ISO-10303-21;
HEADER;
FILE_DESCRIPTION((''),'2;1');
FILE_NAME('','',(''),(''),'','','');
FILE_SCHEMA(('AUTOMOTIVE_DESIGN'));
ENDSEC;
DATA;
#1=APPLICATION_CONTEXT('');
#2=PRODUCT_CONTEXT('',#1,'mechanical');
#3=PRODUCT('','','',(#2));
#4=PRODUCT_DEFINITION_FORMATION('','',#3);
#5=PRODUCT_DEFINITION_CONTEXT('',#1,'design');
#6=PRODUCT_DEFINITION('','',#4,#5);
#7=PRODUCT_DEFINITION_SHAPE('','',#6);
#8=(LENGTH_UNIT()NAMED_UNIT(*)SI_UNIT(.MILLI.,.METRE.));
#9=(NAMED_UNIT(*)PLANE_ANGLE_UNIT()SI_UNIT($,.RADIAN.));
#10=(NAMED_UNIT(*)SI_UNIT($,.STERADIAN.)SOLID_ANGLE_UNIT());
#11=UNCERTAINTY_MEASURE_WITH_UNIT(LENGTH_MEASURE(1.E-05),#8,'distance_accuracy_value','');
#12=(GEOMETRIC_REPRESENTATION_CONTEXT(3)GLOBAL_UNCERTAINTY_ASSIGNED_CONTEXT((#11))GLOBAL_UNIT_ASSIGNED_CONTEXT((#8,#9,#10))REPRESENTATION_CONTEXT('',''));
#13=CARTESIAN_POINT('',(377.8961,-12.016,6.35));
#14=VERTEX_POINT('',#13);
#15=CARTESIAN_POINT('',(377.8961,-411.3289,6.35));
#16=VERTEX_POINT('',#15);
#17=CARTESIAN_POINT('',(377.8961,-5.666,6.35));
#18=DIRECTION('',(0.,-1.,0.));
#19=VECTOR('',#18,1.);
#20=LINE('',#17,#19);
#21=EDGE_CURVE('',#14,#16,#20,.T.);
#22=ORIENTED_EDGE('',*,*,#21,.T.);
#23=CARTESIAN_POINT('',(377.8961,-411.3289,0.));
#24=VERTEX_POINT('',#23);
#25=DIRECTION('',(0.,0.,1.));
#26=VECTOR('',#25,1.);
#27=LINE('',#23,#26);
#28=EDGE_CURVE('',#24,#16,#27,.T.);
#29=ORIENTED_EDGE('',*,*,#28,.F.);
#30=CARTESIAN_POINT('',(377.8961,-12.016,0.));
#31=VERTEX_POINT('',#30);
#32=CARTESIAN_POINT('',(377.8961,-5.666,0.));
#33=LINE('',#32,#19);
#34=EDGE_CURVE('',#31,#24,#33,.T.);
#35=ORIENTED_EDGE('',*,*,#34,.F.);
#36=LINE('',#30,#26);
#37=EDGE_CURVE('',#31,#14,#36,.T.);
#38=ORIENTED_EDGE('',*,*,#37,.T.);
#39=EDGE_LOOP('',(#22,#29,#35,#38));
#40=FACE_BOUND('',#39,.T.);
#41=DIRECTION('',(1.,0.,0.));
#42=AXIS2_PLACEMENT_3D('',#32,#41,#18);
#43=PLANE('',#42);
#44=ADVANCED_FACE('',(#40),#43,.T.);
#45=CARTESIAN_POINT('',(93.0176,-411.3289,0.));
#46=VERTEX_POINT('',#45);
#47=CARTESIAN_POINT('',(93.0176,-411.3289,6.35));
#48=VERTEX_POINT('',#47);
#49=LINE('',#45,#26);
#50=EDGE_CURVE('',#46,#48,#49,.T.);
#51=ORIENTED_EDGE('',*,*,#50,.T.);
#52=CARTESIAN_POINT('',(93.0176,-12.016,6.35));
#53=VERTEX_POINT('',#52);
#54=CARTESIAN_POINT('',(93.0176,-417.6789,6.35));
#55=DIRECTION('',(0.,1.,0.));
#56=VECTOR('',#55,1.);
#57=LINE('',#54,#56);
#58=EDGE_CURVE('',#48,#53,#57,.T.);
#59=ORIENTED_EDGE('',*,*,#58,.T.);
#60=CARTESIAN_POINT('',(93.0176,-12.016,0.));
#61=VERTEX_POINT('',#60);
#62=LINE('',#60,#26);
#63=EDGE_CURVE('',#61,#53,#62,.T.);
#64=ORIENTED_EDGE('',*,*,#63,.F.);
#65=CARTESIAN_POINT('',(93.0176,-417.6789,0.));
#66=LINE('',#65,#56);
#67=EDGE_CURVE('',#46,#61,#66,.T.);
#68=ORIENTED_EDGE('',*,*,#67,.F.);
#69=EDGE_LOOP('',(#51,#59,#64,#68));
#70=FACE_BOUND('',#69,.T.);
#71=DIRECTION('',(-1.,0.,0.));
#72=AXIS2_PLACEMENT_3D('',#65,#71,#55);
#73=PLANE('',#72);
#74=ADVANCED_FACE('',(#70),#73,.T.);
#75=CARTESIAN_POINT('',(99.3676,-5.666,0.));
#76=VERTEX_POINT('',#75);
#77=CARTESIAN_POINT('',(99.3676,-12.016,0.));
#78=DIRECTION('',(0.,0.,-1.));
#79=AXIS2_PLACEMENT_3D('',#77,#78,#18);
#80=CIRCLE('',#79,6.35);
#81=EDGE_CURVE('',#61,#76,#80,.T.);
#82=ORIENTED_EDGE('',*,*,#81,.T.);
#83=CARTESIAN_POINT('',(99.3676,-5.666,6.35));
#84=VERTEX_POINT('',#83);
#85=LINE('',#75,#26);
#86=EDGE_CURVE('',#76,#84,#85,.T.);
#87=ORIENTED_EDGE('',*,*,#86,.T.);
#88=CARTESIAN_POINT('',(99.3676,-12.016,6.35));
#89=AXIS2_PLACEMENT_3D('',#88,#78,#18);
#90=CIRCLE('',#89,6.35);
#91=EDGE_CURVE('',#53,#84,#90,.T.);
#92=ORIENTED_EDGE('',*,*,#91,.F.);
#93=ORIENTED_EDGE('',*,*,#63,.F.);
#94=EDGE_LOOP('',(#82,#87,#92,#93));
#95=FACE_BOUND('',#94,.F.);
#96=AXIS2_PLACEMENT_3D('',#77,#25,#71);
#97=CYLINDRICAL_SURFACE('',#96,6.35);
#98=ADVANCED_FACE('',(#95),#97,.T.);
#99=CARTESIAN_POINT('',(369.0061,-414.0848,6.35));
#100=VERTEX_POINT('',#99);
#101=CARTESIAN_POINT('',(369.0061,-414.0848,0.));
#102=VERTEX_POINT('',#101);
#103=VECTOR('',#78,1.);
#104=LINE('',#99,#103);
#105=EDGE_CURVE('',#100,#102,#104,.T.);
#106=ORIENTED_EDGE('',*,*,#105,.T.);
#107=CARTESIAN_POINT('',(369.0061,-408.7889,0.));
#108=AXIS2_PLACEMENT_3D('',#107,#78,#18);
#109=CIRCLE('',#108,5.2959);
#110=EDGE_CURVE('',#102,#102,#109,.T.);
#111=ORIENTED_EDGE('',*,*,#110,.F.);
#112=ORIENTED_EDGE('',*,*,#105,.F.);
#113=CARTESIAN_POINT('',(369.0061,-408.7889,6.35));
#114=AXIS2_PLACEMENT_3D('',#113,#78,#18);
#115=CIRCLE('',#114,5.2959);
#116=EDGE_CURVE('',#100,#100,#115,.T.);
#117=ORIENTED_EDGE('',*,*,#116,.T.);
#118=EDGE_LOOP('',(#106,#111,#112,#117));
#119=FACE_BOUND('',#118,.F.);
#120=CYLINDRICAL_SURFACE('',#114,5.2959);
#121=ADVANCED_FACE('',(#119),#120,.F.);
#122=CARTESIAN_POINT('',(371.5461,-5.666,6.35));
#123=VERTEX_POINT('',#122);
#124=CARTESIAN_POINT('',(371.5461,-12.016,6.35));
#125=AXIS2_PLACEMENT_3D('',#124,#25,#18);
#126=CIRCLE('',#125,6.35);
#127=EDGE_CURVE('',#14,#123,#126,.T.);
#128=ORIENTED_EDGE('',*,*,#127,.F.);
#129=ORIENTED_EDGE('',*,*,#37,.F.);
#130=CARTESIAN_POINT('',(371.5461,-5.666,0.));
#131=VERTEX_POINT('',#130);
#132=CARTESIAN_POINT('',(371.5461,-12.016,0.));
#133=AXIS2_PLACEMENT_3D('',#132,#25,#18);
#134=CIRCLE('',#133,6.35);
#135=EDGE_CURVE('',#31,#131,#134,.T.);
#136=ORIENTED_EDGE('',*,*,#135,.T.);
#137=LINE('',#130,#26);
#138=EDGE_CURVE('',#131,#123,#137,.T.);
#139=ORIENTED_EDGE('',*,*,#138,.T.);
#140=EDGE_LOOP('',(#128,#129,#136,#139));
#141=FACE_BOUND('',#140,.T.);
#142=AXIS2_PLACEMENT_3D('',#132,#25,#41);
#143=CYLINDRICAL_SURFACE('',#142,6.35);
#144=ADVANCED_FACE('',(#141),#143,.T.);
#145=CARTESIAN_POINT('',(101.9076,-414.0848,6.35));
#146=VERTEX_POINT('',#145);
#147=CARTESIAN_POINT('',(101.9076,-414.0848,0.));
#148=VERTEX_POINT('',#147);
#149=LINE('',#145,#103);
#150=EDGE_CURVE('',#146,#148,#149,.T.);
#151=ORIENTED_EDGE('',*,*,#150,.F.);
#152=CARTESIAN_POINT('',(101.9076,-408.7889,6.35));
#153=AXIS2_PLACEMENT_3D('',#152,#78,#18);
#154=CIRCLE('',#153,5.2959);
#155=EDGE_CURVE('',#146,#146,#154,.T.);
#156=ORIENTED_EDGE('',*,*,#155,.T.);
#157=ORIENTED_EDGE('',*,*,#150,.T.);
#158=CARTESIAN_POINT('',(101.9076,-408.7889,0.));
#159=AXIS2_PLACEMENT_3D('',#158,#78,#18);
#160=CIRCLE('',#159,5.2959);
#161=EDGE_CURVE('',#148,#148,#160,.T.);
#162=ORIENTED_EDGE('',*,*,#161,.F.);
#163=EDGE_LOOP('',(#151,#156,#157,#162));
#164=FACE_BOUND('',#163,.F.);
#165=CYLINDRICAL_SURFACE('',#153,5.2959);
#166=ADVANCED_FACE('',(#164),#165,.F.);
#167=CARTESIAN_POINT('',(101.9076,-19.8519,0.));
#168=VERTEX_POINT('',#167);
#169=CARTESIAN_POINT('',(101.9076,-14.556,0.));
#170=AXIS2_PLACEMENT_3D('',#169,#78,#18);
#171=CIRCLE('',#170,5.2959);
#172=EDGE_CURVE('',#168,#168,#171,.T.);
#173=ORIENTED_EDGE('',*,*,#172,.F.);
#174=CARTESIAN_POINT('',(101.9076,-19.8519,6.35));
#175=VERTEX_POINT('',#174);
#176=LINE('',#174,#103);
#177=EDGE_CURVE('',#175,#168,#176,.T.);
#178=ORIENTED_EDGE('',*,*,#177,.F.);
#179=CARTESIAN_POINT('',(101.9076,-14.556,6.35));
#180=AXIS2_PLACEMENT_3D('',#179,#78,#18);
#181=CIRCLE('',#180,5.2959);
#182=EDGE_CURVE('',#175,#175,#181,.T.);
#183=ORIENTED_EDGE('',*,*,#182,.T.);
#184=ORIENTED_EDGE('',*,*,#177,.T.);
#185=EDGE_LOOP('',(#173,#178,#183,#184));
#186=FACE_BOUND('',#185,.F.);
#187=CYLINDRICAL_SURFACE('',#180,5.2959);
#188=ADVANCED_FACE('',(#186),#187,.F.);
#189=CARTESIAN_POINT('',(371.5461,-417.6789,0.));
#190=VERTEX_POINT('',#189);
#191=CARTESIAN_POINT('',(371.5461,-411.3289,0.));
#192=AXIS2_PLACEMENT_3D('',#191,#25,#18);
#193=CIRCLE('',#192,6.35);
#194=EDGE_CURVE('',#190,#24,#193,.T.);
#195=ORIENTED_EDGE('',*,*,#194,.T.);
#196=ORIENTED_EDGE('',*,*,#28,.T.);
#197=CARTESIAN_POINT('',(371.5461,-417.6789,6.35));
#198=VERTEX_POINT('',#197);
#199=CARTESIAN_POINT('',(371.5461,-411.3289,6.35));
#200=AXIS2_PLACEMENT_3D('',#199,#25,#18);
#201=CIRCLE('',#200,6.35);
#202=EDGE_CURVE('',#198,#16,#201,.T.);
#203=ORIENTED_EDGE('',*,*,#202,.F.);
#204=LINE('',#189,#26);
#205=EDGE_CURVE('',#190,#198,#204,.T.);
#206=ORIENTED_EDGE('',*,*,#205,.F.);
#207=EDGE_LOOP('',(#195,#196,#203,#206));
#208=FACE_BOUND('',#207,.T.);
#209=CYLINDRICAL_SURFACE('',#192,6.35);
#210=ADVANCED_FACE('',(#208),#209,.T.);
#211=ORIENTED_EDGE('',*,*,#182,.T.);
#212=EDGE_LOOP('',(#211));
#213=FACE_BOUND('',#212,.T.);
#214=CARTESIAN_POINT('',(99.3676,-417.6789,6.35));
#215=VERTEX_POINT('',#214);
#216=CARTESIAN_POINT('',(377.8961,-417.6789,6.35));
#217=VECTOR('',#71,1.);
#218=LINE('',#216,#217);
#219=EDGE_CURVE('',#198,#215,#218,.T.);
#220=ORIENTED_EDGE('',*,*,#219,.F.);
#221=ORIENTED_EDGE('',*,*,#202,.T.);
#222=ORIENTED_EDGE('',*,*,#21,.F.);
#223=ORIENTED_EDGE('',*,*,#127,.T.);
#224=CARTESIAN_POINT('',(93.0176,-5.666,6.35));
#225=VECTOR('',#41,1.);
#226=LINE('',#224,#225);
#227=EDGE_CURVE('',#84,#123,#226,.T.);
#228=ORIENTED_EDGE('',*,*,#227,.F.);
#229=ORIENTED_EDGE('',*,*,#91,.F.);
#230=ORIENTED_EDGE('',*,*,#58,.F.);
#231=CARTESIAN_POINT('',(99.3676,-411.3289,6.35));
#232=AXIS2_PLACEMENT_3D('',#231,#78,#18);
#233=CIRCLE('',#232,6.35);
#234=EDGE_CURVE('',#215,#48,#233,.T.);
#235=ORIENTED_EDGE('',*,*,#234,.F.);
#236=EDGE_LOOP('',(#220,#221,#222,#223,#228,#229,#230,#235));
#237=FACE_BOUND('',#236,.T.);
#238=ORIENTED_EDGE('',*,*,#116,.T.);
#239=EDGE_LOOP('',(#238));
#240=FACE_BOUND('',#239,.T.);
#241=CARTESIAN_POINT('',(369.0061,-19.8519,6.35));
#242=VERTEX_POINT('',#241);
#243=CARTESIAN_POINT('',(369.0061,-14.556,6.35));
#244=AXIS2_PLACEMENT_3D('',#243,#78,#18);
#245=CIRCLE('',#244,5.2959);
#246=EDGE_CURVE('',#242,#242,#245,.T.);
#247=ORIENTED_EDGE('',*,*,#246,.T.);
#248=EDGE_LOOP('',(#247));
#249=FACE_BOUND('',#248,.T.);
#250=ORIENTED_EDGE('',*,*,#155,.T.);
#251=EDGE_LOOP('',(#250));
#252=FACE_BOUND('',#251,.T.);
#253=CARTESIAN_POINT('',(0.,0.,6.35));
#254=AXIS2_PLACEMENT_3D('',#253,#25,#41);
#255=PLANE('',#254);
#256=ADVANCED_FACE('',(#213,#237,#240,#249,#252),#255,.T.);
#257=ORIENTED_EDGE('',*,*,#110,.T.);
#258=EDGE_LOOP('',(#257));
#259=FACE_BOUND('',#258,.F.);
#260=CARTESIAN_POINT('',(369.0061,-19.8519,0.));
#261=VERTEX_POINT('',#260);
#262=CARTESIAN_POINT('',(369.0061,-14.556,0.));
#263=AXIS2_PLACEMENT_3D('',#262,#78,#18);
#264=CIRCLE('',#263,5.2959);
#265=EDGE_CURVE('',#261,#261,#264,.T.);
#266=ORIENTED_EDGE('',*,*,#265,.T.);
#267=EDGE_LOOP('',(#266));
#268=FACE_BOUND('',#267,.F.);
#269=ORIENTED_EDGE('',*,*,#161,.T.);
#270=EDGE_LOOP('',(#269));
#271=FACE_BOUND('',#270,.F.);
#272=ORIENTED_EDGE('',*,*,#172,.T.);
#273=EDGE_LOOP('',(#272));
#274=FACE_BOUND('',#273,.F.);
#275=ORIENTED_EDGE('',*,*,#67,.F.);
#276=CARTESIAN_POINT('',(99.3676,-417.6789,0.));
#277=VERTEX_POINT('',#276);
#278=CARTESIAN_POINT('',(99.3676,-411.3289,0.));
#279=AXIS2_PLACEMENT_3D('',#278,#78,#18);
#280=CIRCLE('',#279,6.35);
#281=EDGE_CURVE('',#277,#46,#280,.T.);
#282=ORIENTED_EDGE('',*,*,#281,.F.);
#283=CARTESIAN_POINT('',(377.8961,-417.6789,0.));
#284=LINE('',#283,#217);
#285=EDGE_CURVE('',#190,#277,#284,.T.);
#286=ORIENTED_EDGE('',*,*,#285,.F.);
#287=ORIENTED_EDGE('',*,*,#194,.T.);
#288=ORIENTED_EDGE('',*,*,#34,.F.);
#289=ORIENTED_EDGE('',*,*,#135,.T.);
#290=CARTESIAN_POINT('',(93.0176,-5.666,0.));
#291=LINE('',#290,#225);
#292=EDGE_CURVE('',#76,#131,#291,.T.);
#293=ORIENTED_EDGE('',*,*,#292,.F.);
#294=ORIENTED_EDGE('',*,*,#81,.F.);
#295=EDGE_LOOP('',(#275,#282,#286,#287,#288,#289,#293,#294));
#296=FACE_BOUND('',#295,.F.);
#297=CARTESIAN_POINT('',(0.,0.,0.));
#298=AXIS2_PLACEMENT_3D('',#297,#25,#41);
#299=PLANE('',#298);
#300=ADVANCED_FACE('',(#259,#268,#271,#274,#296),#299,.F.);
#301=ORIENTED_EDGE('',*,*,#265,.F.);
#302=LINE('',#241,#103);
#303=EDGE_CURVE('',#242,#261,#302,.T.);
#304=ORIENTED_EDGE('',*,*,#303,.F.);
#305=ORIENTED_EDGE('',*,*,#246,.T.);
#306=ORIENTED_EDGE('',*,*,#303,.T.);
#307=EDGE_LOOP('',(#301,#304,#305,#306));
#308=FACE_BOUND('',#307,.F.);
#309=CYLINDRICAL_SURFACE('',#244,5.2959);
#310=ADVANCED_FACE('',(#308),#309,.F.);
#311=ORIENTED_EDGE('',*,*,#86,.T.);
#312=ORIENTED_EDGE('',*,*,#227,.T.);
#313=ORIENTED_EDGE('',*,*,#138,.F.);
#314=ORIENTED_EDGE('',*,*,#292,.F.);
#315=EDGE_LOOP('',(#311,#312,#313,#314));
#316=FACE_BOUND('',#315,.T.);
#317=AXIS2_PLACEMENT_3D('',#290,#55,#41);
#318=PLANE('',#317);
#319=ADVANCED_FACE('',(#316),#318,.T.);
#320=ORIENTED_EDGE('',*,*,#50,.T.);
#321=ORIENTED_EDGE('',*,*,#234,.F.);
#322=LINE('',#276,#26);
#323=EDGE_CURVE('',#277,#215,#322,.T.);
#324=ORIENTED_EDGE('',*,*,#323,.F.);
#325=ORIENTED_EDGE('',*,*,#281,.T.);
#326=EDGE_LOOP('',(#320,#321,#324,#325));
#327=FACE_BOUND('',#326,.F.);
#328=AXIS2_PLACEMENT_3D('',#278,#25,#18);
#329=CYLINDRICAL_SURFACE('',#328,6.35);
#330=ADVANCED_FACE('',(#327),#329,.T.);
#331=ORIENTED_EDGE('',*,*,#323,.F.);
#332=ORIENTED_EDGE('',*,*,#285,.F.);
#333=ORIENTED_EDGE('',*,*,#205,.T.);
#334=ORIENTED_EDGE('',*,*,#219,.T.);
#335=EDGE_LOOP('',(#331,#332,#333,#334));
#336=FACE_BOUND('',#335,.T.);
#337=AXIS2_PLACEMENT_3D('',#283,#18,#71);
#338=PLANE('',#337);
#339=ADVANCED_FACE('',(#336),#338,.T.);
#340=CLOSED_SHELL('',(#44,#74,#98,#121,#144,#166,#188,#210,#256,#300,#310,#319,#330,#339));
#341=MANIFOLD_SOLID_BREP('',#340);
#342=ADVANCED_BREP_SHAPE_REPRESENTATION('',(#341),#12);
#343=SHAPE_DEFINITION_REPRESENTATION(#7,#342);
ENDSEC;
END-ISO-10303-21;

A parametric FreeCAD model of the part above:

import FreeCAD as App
import Part
import Sketcher
from FreeCAD import Vector
Q = App.Units.Quantity


def edges_at(feature, points):
    """Names of the edges that pass closest to the given points."""
    edges = feature.Shape.Edges
    near = lambda p: min(range(len(edges)), key=lambda i: edges[i].distToShape(Part.Vertex(*p))[0])
    return sorted({f"Edge{near(p) + 1}" for p in points})

doc = App.newDocument("Part")
body = doc.addObject("PartDesign::Body", "Body")

sketch1 = body.newObject("Sketcher::SketchObject", "Sketch")
sketch1.AttachmentSupport = (doc.getObject("XY_Plane"), [""])
sketch1.MapMode = "FlatFace"
sketch1.addGeometry(Part.LineSegment(Vector(93.0176, -417.6789, 0), Vector(377.8961, -417.6789, 0)), False)
sketch1.addGeometry(Part.LineSegment(Vector(377.8961, -417.6789, 0), Vector(377.8961, -5.666, 0)), False)
sketch1.addGeometry(Part.LineSegment(Vector(377.8961, -5.666, 0), Vector(93.0176, -5.666, 0)), False)
sketch1.addGeometry(Part.LineSegment(Vector(93.0176, -5.666, 0), Vector(93.0176, -417.6789, 0)), False)
sketch1.addConstraint(Sketcher.Constraint("Coincident", 0, 2, 1, 1))
sketch1.addConstraint(Sketcher.Constraint("Coincident", 1, 2, 2, 1))
sketch1.addConstraint(Sketcher.Constraint("Coincident", 2, 2, 3, 1))
sketch1.addConstraint(Sketcher.Constraint("Coincident", 3, 2, 0, 1))
sketch1.addConstraint(Sketcher.Constraint("Horizontal", 0))
sketch1.addConstraint(Sketcher.Constraint("Vertical", 1))
sketch1.addConstraint(Sketcher.Constraint("Horizontal", 2))
sketch1.addConstraint(Sketcher.Constraint("Vertical", 3))
sketch1.addConstraint(Sketcher.Constraint("DistanceX", 0, 1, 0, 2, Q("11.2157 in")))
sketch1.addConstraint(Sketcher.Constraint("DistanceY", 1, 1, 1, 2, Q("412.013 mm")))
sketch1.addConstraint(Sketcher.Constraint("DistanceX", -1, 1, 0, 2, Q("14.8778 in")))
sketch1.addConstraint(Sketcher.Constraint("DistanceY", 0, 2, -1, 1, Q("417.679 mm")))
pad1 = body.newObject("PartDesign::Pad", "Pad")
pad1.Profile = sketch1
pad1.Length = Q("0.25 in")

sketch2 = body.newObject("Sketcher::SketchObject", "Sketch001")
sketch2.AttachmentSupport = (doc.getObject("XY_Plane"), [""])
sketch2.MapMode = "FlatFace"
sketch2.AttachmentOffset = App.Placement(Vector(0, 0, 0.25 * 25.4), App.Rotation())
sketch2.addGeometry(Part.Circle(Vector(101.9076, -14.556, 0), Vector(0, 0, 1), 5.2959), False)
sketch2.addGeometry(Part.Circle(Vector(369.0061, -14.556, 0), Vector(0, 0, 1), 5.2959), False)
sketch2.addGeometry(Part.Circle(Vector(369.0061, -408.7889, 0), Vector(0, 0, 1), 5.2959), False)
sketch2.addGeometry(Part.Circle(Vector(101.9076, -408.7889, 0), Vector(0, 0, 1), 5.2959), False)
sketch2.addConstraint(Sketcher.Constraint("Equal", 0, 1))
sketch2.addConstraint(Sketcher.Constraint("Equal", 1, 2))
sketch2.addConstraint(Sketcher.Constraint("Equal", 2, 3))
sketch2.addConstraint(Sketcher.Constraint("Horizontal", 0, 3, 1, 3))
sketch2.addConstraint(Sketcher.Constraint("Horizontal", 2, 3, 3, 3))
sketch2.addConstraint(Sketcher.Constraint("Vertical", 1, 3, 2, 3))
sketch2.addConstraint(Sketcher.Constraint("Vertical", 0, 3, 3, 3))
sketch2.addConstraint(Sketcher.Constraint("Diameter", 0, Q("0.417 in")))
sketch2.addConstraint(Sketcher.Constraint("DistanceX", -1, 1, 0, 3, Q("4.0121 in")))
sketch2.addConstraint(Sketcher.Constraint("DistanceX", -1, 1, 1, 3, Q("14.5278 in")))
sketch2.addConstraint(Sketcher.Constraint("DistanceY", 0, 3, -1, 1, Q("14.556 mm")))
sketch2.addConstraint(Sketcher.Constraint("DistanceY", 2, 3, -1, 1, Q("408.789 mm")))
doc.recompute()
hole = body.newObject("PartDesign::Hole", "Hole")
hole.Profile = sketch2
hole.ThreadType = "None"
hole.Diameter = Q("0.417 in")
hole.DepthType = "ThroughAll"
doc.recompute()

fillet = body.newObject("PartDesign::Fillet", "Fillet")
fillet.Base = (hole, edges_at(hole, [
    (93.018, -5.666, 3.175),
    (377.896, -5.666, 3.175),
    (377.896, -417.679, 3.175),
    (93.018, -417.679, 3.175),
]))
fillet.Radius = Q("0.25 in")

doc.recompute()
